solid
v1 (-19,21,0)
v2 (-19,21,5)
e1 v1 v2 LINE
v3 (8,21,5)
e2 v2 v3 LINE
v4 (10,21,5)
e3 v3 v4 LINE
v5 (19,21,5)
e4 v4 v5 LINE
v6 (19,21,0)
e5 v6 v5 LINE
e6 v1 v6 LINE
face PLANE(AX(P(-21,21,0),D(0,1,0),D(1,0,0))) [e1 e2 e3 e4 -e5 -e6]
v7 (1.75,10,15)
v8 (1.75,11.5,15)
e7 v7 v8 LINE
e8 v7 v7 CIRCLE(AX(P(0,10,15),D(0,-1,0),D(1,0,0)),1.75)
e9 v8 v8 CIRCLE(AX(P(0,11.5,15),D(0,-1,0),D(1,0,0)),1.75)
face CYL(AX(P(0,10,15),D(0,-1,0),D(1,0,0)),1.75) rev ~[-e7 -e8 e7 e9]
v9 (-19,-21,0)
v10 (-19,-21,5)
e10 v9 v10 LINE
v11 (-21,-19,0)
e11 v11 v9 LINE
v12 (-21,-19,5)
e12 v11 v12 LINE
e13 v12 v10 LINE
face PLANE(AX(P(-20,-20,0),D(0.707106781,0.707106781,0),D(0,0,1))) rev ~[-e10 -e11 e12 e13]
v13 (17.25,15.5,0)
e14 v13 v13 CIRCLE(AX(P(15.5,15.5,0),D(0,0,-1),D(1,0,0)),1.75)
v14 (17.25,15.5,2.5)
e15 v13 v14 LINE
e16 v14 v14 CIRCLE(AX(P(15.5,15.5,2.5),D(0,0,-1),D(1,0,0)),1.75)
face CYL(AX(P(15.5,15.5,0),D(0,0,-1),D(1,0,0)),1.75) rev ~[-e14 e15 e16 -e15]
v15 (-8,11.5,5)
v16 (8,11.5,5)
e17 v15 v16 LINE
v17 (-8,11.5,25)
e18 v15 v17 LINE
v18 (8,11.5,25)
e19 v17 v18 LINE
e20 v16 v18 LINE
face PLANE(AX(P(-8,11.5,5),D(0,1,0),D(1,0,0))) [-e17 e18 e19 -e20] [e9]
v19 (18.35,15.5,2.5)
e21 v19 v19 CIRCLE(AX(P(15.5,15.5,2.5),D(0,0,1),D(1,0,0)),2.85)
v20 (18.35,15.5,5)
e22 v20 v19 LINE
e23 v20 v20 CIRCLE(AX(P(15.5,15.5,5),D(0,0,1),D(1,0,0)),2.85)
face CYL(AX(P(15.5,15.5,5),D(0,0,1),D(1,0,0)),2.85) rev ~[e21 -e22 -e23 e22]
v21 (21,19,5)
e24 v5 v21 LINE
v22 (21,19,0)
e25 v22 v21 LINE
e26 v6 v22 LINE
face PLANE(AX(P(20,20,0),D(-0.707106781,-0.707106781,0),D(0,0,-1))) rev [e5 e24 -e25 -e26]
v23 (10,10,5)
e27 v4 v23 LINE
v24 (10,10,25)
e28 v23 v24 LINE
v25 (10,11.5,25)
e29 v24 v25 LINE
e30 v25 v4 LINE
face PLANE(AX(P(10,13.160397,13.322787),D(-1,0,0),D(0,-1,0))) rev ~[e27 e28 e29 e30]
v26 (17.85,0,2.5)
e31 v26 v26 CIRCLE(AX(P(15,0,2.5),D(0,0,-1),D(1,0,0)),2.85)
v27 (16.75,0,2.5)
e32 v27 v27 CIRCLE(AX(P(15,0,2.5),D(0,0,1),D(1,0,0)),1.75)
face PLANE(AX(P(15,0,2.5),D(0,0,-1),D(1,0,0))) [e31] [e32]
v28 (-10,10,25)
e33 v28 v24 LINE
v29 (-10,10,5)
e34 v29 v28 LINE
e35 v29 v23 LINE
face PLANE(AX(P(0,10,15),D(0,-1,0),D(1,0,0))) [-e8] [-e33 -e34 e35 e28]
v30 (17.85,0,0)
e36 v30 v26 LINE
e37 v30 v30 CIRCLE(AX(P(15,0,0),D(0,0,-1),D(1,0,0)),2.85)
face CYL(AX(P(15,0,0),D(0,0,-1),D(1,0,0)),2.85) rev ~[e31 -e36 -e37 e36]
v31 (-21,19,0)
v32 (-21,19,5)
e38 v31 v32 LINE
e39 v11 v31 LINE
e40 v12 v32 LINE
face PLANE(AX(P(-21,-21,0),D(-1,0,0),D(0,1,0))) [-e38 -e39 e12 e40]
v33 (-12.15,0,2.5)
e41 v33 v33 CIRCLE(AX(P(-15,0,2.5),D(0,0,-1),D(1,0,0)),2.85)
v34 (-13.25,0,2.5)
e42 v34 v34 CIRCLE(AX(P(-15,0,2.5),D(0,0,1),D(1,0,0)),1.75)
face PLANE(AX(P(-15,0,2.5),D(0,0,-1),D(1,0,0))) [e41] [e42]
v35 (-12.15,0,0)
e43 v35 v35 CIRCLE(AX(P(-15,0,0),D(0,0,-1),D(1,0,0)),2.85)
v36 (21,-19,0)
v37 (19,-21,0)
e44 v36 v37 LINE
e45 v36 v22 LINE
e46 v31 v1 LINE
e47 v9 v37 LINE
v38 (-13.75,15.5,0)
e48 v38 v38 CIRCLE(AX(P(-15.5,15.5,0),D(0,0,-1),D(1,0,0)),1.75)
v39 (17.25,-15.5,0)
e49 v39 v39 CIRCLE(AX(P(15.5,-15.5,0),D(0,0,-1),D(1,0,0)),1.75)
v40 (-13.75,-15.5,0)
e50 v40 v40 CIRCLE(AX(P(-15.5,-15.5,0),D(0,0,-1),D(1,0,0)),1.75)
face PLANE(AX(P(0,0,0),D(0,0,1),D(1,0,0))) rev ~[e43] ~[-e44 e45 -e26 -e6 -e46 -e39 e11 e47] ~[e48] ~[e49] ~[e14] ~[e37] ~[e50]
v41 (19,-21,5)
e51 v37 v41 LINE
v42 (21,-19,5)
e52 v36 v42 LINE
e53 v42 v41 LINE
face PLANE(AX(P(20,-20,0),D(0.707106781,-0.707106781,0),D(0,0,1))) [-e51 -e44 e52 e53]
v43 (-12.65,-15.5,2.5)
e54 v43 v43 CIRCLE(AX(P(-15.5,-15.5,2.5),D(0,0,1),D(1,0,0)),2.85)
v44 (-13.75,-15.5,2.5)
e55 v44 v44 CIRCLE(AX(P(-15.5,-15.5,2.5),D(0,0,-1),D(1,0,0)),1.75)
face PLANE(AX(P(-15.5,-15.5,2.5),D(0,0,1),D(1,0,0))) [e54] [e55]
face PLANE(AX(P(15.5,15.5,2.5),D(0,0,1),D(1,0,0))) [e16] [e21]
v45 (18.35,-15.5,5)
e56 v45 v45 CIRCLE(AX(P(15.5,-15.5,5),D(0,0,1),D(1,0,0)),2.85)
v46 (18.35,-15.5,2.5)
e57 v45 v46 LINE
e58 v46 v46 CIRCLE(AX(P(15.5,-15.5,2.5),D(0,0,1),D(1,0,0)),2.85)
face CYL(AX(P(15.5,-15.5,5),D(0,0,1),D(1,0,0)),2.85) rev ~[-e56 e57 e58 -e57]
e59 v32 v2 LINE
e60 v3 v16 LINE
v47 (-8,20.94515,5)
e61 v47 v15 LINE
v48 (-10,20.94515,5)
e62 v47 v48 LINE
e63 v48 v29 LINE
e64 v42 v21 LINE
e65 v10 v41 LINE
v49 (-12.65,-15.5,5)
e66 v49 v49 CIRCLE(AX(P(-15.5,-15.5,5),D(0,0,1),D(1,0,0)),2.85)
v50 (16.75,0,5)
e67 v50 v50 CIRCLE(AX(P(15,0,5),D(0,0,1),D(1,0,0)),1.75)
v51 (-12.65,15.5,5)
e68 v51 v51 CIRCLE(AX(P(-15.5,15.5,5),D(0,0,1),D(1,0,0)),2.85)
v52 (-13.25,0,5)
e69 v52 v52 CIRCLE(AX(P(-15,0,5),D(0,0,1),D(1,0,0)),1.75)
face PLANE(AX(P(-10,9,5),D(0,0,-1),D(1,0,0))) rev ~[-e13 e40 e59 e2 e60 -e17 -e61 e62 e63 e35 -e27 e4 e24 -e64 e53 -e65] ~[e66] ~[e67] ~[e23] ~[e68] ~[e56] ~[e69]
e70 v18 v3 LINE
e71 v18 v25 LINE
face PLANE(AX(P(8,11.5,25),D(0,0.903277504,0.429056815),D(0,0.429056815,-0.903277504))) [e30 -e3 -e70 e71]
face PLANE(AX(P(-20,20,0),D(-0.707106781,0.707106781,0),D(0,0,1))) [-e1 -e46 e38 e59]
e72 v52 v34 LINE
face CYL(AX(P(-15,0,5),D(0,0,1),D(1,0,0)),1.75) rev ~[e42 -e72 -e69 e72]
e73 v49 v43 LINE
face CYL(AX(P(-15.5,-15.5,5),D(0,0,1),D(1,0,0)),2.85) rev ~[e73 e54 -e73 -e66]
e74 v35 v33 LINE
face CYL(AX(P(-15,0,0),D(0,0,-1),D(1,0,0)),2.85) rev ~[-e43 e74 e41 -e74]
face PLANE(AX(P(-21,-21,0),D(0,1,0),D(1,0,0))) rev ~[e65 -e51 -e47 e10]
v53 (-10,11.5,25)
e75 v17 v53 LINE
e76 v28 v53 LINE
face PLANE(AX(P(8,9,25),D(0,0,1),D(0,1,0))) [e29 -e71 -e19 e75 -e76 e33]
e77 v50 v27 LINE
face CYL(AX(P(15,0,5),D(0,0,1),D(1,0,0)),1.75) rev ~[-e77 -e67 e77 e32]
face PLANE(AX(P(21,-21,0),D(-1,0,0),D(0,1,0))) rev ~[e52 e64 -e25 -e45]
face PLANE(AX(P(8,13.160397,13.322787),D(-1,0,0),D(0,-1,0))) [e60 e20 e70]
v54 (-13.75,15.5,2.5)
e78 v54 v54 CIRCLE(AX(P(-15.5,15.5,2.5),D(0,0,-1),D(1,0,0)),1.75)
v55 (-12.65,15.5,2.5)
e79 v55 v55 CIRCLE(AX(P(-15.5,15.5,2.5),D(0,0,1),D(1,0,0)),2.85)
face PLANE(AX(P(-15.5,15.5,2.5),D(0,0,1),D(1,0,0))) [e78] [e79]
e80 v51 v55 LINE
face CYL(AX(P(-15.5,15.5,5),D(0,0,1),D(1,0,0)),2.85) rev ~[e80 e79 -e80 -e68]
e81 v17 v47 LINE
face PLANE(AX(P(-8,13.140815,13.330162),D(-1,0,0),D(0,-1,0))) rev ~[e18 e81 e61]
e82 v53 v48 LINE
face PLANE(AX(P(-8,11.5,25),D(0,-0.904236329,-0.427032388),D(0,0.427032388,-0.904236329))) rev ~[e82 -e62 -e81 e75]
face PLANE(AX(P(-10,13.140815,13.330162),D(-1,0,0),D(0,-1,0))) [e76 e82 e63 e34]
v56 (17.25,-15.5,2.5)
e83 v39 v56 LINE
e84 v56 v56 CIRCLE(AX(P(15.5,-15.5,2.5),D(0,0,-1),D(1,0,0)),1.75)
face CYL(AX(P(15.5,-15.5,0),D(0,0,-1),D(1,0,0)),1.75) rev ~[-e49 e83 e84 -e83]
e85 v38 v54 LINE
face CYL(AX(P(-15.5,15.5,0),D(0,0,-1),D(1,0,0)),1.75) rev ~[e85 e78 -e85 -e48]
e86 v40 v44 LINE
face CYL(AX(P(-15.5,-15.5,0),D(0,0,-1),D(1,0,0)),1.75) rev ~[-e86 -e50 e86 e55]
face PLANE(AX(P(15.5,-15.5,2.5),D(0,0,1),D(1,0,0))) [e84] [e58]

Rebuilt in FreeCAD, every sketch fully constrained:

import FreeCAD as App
import Part
import Sketcher
from FreeCAD import Vector
Q = App.Units.Quantity


def edges_at(feature, points):
    """Names of the edges that pass closest to the given points."""
    edges = feature.Shape.Edges
    near = lambda p: min(range(len(edges)), key=lambda i: edges[i].distToShape(Part.Vertex(*p))[0])
    return sorted({f"Edge{near(p) + 1}" for p in points})

doc = App.newDocument("Part")
body = doc.addObject("PartDesign::Body", "Body")

# Sketch on XY plane
sketch1 = body.newObject("Sketcher::SketchObject", "Sketch")
sketch1.AttachmentSupport = (doc.getObject("XY_Plane"), [""])
sketch1.MapMode = "FlatFace"
sketch1.addGeometry([
    Part.LineSegment(Vector(-21, 21, 0), Vector(-21, -21, 0)),
    Part.LineSegment(Vector(-21, -21, 0), Vector(21, -21, 0)),
    Part.LineSegment(Vector(21, -21, 0), Vector(21, 21, 0)),
    Part.LineSegment(Vector(21, 21, 0), Vector(-21, 21, 0)),
], False)
sketch1.addConstraint([
    Sketcher.Constraint("Coincident", 0, 2, 1, 1),
    Sketcher.Constraint("Coincident", 1, 2, 2, 1),
    Sketcher.Constraint("Coincident", 2, 2, 3, 1),
    Sketcher.Constraint("Coincident", 3, 2, 0, 1),
    Sketcher.Constraint("Vertical", 0),
    Sketcher.Constraint("Horizontal", 1),
    Sketcher.Constraint("Vertical", 2),
    Sketcher.Constraint("Horizontal", 3),
    Sketcher.Constraint("Symmetric", 0, 2, 2, 2, -1, 1),
    Sketcher.Constraint("Equal", 3, 0),
    Sketcher.Constraint("DistanceX", 1, 1, 1, 2, Q("42 mm")),
])
pad1 = body.newObject("PartDesign::Pad", "Pad")
pad1.Profile = sketch1
pad1.Length = 5

# Sketch on XY plane
sketch2 = body.newObject("Sketcher::SketchObject", "Sketch001")
sketch2.AttachmentSupport = (doc.getObject("XY_Plane"), [""])
sketch2.MapMode = "FlatFace"
sketch2.AttachmentOffset = App.Placement(Vector(0, 0, 5), App.Rotation())
sketch2.addGeometry([
    Part.Circle(Vector(-15.5, -15.5, 0), Vector(0, 0, 1), 2.8),
    Part.Circle(Vector(15.5, -15.5, 0), Vector(0, 0, 1), 2.8),
    Part.Circle(Vector(15.5, 15.5, 0), Vector(0, 0, 1), 2.8),
    Part.Circle(Vector(-15.5, 15.5, 0), Vector(0, 0, 1), 2.8),
], False)
sketch2.addConstraint([
    Sketcher.Constraint("Equal", 0, 1),
    Sketcher.Constraint("Equal", 1, 2),
    Sketcher.Constraint("Equal", 2, 3),
    Sketcher.Constraint("Symmetric", 0, 3, 2, 3, -1, 1),
    Sketcher.Constraint("Symmetric", 1, 3, 3, 3, -1, 1),
    Sketcher.Constraint("Symmetric", 0, 3, 1, 3, -2),
    Sketcher.Constraint("Diameter", 0, Q("5.5 mm")),
    Sketcher.Constraint("DistanceX", 0, 3, 1, 3, Q("31 mm")),
    Sketcher.Constraint("DistanceY", 1, 3, 2, 3, Q("31 mm")),
])
pocket1 = body.newObject("PartDesign::Pocket", "Pocket")
pocket1.Profile = sketch2
pocket1.Length = 2.5

# Sketch on XY plane
sketch3 = body.newObject("Sketcher::SketchObject", "Sketch002")
sketch3.AttachmentSupport = (doc.getObject("XY_Plane"), [""])
sketch3.MapMode = "FlatFace"
sketch3.addGeometry([
    Part.Circle(Vector(-15.5, -15.5, 0), Vector(0, 0, 1), 1.6),
    Part.Circle(Vector(15.5, -15.5, 0), Vector(0, 0, 1), 1.6),
    Part.Circle(Vector(15.5, 15.5, 0), Vector(0, 0, 1), 1.6),
    Part.Circle(Vector(-15.5, 15.5, 0), Vector(0, 0, 1), 1.6),
], False)
sketch3.addConstraint([
    Sketcher.Constraint("Equal", 0, 1),
    Sketcher.Constraint("Equal", 1, 2),
    Sketcher.Constraint("Equal", 2, 3),
    Sketcher.Constraint("Symmetric", 0, 3, 2, 3, -1, 1),
    Sketcher.Constraint("Symmetric", 1, 3, 3, 3, -1, 1),
    Sketcher.Constraint("Symmetric", 0, 3, 1, 3, -2),
    Sketcher.Constraint("Diameter", 0, Q("3.1 mm")),
    Sketcher.Constraint("DistanceX", 0, 3, 1, 3, Q("31 mm")),
    Sketcher.Constraint("DistanceY", 1, 3, 2, 3, Q("31 mm")),
])
pocket2 = body.newObject("PartDesign::Pocket", "Pocket001")
pocket2.Profile = sketch3
pocket2.Length = 5
pocket2.Reversed = True

# Sketch on XY plane
sketch4 = body.newObject("Sketcher::SketchObject", "Sketch003")
sketch4.AttachmentSupport = (doc.getObject("XY_Plane"), [""])
sketch4.MapMode = "FlatFace"
sketch4.addGeometry([
    Part.Circle(Vector(-15, 0, 0), Vector(0, 0, 1), 2.8),
    Part.Circle(Vector(15, 0, 0), Vector(0, 0, 1), 2.8),
], False)
sketch4.addConstraint([
    Sketcher.Constraint("Equal", 0, 1),
    Sketcher.Constraint("Symmetric", 0, 3, 1, 3, -1, 1),
    Sketcher.Constraint("PointOnObject", 0, 3, -1),
    Sketcher.Constraint("Diameter", 0, Q("5.5 mm")),
    Sketcher.Constraint("DistanceX", 0, 3, -1, 1, Q("15 mm")),
])
pocket3 = body.newObject("PartDesign::Pocket", "Pocket002")
pocket3.Profile = sketch4
pocket3.Length = 2.5
pocket3.Reversed = True

# Sketch on XY plane
sketch5 = body.newObject("Sketcher::SketchObject", "Sketch004")
sketch5.AttachmentSupport = (doc.getObject("XY_Plane"), [""])
sketch5.MapMode = "FlatFace"
sketch5.AttachmentOffset = App.Placement(Vector(0, 0, 5), App.Rotation())
sketch5.addGeometry([
    Part.Circle(Vector(-15, 0, 0), Vector(0, 0, 1), 1.6),
    Part.Circle(Vector(15, 0, 0), Vector(0, 0, 1), 1.6),
], False)
sketch5.addConstraint([
    Sketcher.Constraint("Equal", 0, 1),
    Sketcher.Constraint("Symmetric", 0, 3, 1, 3, -1, 1),
    Sketcher.Constraint("PointOnObject", 0, 3, -1),
    Sketcher.Constraint("Diameter", 0, Q("3.1 mm")),
    Sketcher.Constraint("DistanceX", 0, 3, -1, 1, Q("15 mm")),
])
pocket4 = body.newObject("PartDesign::Pocket", "Pocket003")
pocket4.Profile = sketch5
pocket4.Length = 5
doc.recompute()

chamfer = body.newObject("PartDesign::Chamfer", "Chamfer")
chamfer.Base = (pocket4, edges_at(pocket4, [(-21, -21, 2.5)]))
chamfer.Size = 2
doc.recompute()

chamfer2 = body.newObject("PartDesign::Chamfer", "Chamfer001")
chamfer2.Base = (chamfer, edges_at(chamfer, [(-21, 21, 2.5)]))
chamfer2.Size = 2
doc.recompute()

chamfer3 = body.newObject("PartDesign::Chamfer", "Chamfer002")
chamfer3.Base = (chamfer2, edges_at(chamfer2, [(21, 21, 2.5)]))
chamfer3.Size = 2
doc.recompute()

chamfer4 = body.newObject("PartDesign::Chamfer", "Chamfer003")
chamfer4.Base = (chamfer3, edges_at(chamfer3, [(21, -21, 2.5)]))
chamfer4.Size = 2

# Sketch on XY plane
sketch6 = body.newObject("Sketcher::SketchObject", "Sketch005")
sketch6.AttachmentSupport = (doc.getObject("XY_Plane"), [""])
sketch6.MapMode = "FlatFace"
sketch6.AttachmentOffset = App.Placement(Vector(0, 0, 5), App.Rotation())
sketch6.addGeometry([
    Part.LineSegment(Vector(-8, 11.5, 0), Vector(-8, 9, 0)),
    Part.LineSegment(Vector(-8, 9, 0), Vector(8, 9, 0)),
    Part.LineSegment(Vector(8, 9, 0), Vector(8, 11.5, 0)),
    Part.LineSegment(Vector(8, 11.5, 0), Vector(-8, 11.5, 0)),
], False)
sketch6.addConstraint([
    Sketcher.Constraint("Coincident", 0, 2, 1, 1),
    Sketcher.Constraint("Coincident", 1, 2, 2, 1),
    Sketcher.Constraint("Coincident", 2, 2, 3, 1),
    Sketcher.Constraint("Coincident", 3, 2, 0, 1),
    Sketcher.Constraint("Vertical", 0),
    Sketcher.Constraint("Horizontal", 1),
    Sketcher.Constraint("Vertical", 2),
    Sketcher.Constraint("Horizontal", 3),
    Sketcher.Constraint("DistanceX", 1, 1, 1, 2, Q("16 mm")),
    Sketcher.Constraint("DistanceY", 0, 2, 0, 1, Q("2.5 mm")),
    Sketcher.Constraint("DistanceX", 0, 2, -1, 1, Q("8 mm")),
    Sketcher.Constraint("DistanceY", -1, 1, 0, 2, Q("9 mm")),
])
pad2 = body.newObject("PartDesign::Pad", "Pad001")
pad2.Profile = sketch6
pad2.Length = 20

# Sketch on YZ plane
sketch7 = body.newObject("Sketcher::SketchObject", "Sketch006")
sketch7.AttachmentSupport = (doc.getObject("YZ_Plane"), [""])
sketch7.MapMode = "FlatFace"
sketch7.AttachmentOffset = App.Placement(Vector(0, 0, -8), App.Rotation())
sketch7.addGeometry([
    Part.LineSegment(Vector(9, 25, 0), Vector(11.5, 25, 0)),
    Part.LineSegment(Vector(11.5, 25, 0), Vector(20.9, 5, 0)),
    Part.LineSegment(Vector(20.9, 5, 0), Vector(9, 5, 0)),
    Part.LineSegment(Vector(9, 5, 0), Vector(9, 25, 0)),
], False)
sketch7.addConstraint([
    Sketcher.Constraint("Coincident", 0, 2, 1, 1),
    Sketcher.Constraint("Coincident", 1, 2, 2, 1),
    Sketcher.Constraint("Coincident", 2, 2, 3, 1),
    Sketcher.Constraint("Coincident", 3, 2, 0, 1),
    Sketcher.Constraint("Horizontal", 0),
    Sketcher.Constraint("Horizontal", 2),
    Sketcher.Constraint("Vertical", 3),
    Sketcher.Constraint("DistanceY", 3, 1, 3, 2, Q("20 mm")),
    Sketcher.Constraint("DistanceX", 0, 1, 0, 2, Q("2.5 mm")),
    Sketcher.Constraint("DistanceY", -1, 1, 0, 2, Q("25 mm")),
    Sketcher.Constraint("DistanceX", -1, 1, 2, 2, Q("9 mm")),
    Sketcher.Constraint("DistanceX", 2, 2, 2, 1, Q("11.94515 mm")),
])
pad3 = body.newObject("PartDesign::Pad", "Pad002")
pad3.Profile = sketch7
pad3.Length = 2
pad3.Reversed = True

# Sketch on YZ plane
sketch8 = body.newObject("Sketcher::SketchObject", "Sketch007")
sketch8.AttachmentSupport = (doc.getObject("YZ_Plane"), [""])
sketch8.MapMode = "FlatFace"
sketch8.AttachmentOffset = App.Placement(Vector(0, 0, 8), App.Rotation())
sketch8.addGeometry([
    Part.LineSegment(Vector(11.5, 25, 0), Vector(9, 25, 0)),
    Part.LineSegment(Vector(9, 25, 0), Vector(9, 5, 0)),
    Part.LineSegment(Vector(9, 5, 0), Vector(21, 5, 0)),
    Part.LineSegment(Vector(21, 5, 0), Vector(11.5, 25, 0)),
], False)
sketch8.addConstraint([
    Sketcher.Constraint("Coincident", 0, 2, 1, 1),
    Sketcher.Constraint("Coincident", 1, 2, 2, 1),
    Sketcher.Constraint("Coincident", 2, 2, 3, 1),
    Sketcher.Constraint("Coincident", 3, 2, 0, 1),
    Sketcher.Constraint("Horizontal", 0),
    Sketcher.Constraint("Vertical", 1),
    Sketcher.Constraint("Horizontal", 2),
    Sketcher.Constraint("DistanceX", 2, 1, 2, 2, Q("12 mm")),
    Sketcher.Constraint("DistanceY", 1, 2, 1, 1, Q("20 mm")),
    Sketcher.Constraint("DistanceX", 0, 2, 0, 1, Q("2.5 mm")),
    Sketcher.Constraint("DistanceX", -1, 1, 0, 2, Q("9 mm")),
    Sketcher.Constraint("DistanceY", -1, 1, 0, 2, Q("25 mm")),
])
pad4 = body.newObject("PartDesign::Pad", "Pad003")
pad4.Profile = sketch8
pad4.Length = 2

# Sketch on XZ plane
sketch9 = body.newObject("Sketcher::SketchObject", "Sketch008")
sketch9.AttachmentSupport = (doc.getObject("XZ_Plane"), [""])
sketch9.MapMode = "FlatFace"
sketch9.AttachmentOffset = App.Placement(Vector(0, 0, -11.5), App.Rotation())
sketch9.addGeometry(Part.Circle(Vector(0, 15, 0), Vector(0, 0, 1), 1.6), False)
sketch9.addConstraint([
    Sketcher.Constraint("PointOnObject", 0, 3, -2),
    Sketcher.Constraint("Diameter", 0, Q("3.1 mm")),
    Sketcher.Constraint("DistanceY", -1, 1, 0, 3, Q("15 mm")),
])
pocket5 = body.newObject("PartDesign::Pocket", "Pocket004")
pocket5.Profile = sketch9
pocket5.Length = 5
pocket5.Reversed = True

# Sketch on XZ plane
sketch10 = body.newObject("Sketcher::SketchObject", "Sketch009")
sketch10.AttachmentSupport = (doc.getObject("XZ_Plane"), [""])
sketch10.MapMode = "FlatFace"
sketch10.AttachmentOffset = App.Placement(Vector(0, 0, -9), App.Rotation())
sketch10.addGeometry([
    Part.LineSegment(Vector(-10, 25, 0), Vector(-10, 5, 0)),
    Part.LineSegment(Vector(-10, 5, 0), Vector(10, 5, 0)),
    Part.LineSegment(Vector(10, 5, 0), Vector(10, 25, 0)),
    Part.LineSegment(Vector(10, 25, 0), Vector(-10, 25, 0)),
], False)
sketch10.addConstraint([
    Sketcher.Constraint("Coincident", 0, 2, 1, 1),
    Sketcher.Constraint("Coincident", 1, 2, 2, 1),
    Sketcher.Constraint("Coincident", 2, 2, 3, 1),
    Sketcher.Constraint("Coincident", 3, 2, 0, 1),
    Sketcher.Constraint("Vertical", 0),
    Sketcher.Constraint("Horizontal", 1),
    Sketcher.Constraint("Vertical", 2),
    Sketcher.Constraint("Horizontal", 3),
    Sketcher.Constraint("Equal", 3, 0),
    Sketcher.Constraint("DistanceX", 1, 1, 1, 2, Q("20 mm")),
    Sketcher.Constraint("DistanceX", 0, 2, -1, 1, Q("10 mm")),
    Sketcher.Constraint("DistanceY", -1, 1, 0, 2, Q("5 mm")),
])
pocket6 = body.newObject("PartDesign::Pocket", "Pocket005")
pocket6.Profile = sketch10
pocket6.Length = 1

# Sketch on XY plane
sketch11 = body.newObject("Sketcher::SketchObject", "Sketch010")
sketch11.AttachmentSupport = (doc.getObject("XY_Plane"), [""])
sketch11.MapMode = "FlatFace"
sketch11.AttachmentOffset = App.Placement(Vector(0, 0, 5), App.Rotation())
sketch11.addGeometry([
    Part.Circle(Vector(-15.5, 15.5, 0), Vector(0, 0, 1), 2.9),  # 0
    Part.Circle(Vector(-15.5, -15.5, 0), Vector(0, 0, 1), 2.9),  # 1
    Part.Circle(Vector(15.5, -15.5, 0), Vector(0, 0, 1), 2.9),  # 2
    Part.Circle(Vector(15, 0, 0), Vector(0, 0, 1), 1.8),  # 3
    Part.Circle(Vector(15.5, 15.5, 0), Vector(0, 0, 1), 2.9),  # 4
    Part.Circle(Vector(-15, 0, 0), Vector(0, 0, 1), 1.8),  # 5
], False)
sketch11.addConstraint([
    Sketcher.Constraint("Equal", 0, 1),
    Sketcher.Constraint("Equal", 1, 2),
    Sketcher.Constraint("Equal", 2, 4),
    Sketcher.Constraint("Equal", 3, 5),
    Sketcher.Constraint("Symmetric", 0, 3, 2, 3, -1, 1),
    Sketcher.Constraint("Symmetric", 1, 3, 4, 3, -1, 1),
    Sketcher.Constraint("Symmetric", 3, 3, 5, 3, -1, 1),
    Sketcher.Constraint("Symmetric", 1, 3, 2, 3, -2),
    Sketcher.Constraint("PointOnObject", 3, 3, -1),
    Sketcher.Constraint("Diameter", 0, Q("5.7 mm")),
    Sketcher.Constraint("Diameter", 3, Q("3.5 mm")),
    Sketcher.Constraint("DistanceX", -1, 1, 3, 3, Q("15 mm")),
    Sketcher.Constraint("DistanceY", 1, 3, 0, 3, Q("31 mm")),
    Sketcher.Constraint("DistanceX", 1, 3, 2, 3, Q("31 mm")),
])
pocket7 = body.newObject("PartDesign::Pocket", "Pocket006")
pocket7.Profile = sketch11
pocket7.Length = 2.5

# Sketch on XY plane
sketch12 = body.newObject("Sketcher::SketchObject", "Sketch011")
sketch12.AttachmentSupport = (doc.getObject("XY_Plane"), [""])
sketch12.MapMode = "FlatFace"
sketch12.addGeometry([
    Part.Circle(Vector(-15.5, -15.5, 0), Vector(0, 0, 1), 1.8),  # 0
    Part.Circle(Vector(15.5, -15.5, 0), Vector(0, 0, 1), 1.8),  # 1
    Part.Circle(Vector(-15, 0, 0), Vector(0, 0, 1), 2.9),  # 2
    Part.Circle(Vector(15, 0, 0), Vector(0, 0, 1), 2.9),  # 3
    Part.Circle(Vector(15.5, 15.5, 0), Vector(0, 0, 1), 1.8),  # 4
    Part.Circle(Vector(-15.5, 15.5, 0), Vector(0, 0, 1), 1.8),  # 5
], False)
sketch12.addConstraint([
    Sketcher.Constraint("Equal", 0, 1),
    Sketcher.Constraint("Equal", 2, 3),
    Sketcher.Constraint("Equal", 1, 4),
    Sketcher.Constraint("Equal", 4, 5),
    Sketcher.Constraint("Symmetric", 2, 3, 3, 3, -1, 1),
    Sketcher.Constraint("Symmetric", 0, 3, 4, 3, -1, 1),
    Sketcher.Constraint("Symmetric", 1, 3, 5, 3, -1, 1),
    Sketcher.Constraint("Symmetric", 0, 3, 1, 3, -2),
    Sketcher.Constraint("PointOnObject", 2, 3, -1),
    Sketcher.Constraint("Diameter", 0, Q("3.5 mm")),
    Sketcher.Constraint("Diameter", 2, Q("5.7 mm")),
    Sketcher.Constraint("DistanceX", 2, 3, -1, 1, Q("15 mm")),
    Sketcher.Constraint("DistanceX", 0, 3, 1, 3, Q("31 mm")),
    Sketcher.Constraint("DistanceY", 1, 3, 4, 3, Q("31 mm")),
])
pocket8 = body.newObject("PartDesign::Pocket", "Pocket007")
pocket8.Profile = sketch12
pocket8.Length = 2.5
pocket8.Reversed = True

# Sketch on XZ plane
sketch13 = body.newObject("Sketcher::SketchObject", "Sketch012")
sketch13.AttachmentSupport = (doc.getObject("XZ_Plane"), [""])
sketch13.MapMode = "FlatFace"
sketch13.AttachmentOffset = App.Placement(Vector(0, 0, -10), App.Rotation())
sketch13.addGeometry(Part.Circle(Vector(0, 15, 0), Vector(0, 0, 1), 1.8), False)
sketch13.addConstraint([
    Sketcher.Constraint("PointOnObject", 0, 3, -2),
    Sketcher.Constraint("Diameter", 0, Q("3.5 mm")),
    Sketcher.Constraint("DistanceY", -1, 1, 0, 3, Q("15 mm")),
])
pocket9 = body.newObject("PartDesign::Pocket", "Pocket008")
pocket9.Profile = sketch13
pocket9.Length = 5

doc.recompute()
